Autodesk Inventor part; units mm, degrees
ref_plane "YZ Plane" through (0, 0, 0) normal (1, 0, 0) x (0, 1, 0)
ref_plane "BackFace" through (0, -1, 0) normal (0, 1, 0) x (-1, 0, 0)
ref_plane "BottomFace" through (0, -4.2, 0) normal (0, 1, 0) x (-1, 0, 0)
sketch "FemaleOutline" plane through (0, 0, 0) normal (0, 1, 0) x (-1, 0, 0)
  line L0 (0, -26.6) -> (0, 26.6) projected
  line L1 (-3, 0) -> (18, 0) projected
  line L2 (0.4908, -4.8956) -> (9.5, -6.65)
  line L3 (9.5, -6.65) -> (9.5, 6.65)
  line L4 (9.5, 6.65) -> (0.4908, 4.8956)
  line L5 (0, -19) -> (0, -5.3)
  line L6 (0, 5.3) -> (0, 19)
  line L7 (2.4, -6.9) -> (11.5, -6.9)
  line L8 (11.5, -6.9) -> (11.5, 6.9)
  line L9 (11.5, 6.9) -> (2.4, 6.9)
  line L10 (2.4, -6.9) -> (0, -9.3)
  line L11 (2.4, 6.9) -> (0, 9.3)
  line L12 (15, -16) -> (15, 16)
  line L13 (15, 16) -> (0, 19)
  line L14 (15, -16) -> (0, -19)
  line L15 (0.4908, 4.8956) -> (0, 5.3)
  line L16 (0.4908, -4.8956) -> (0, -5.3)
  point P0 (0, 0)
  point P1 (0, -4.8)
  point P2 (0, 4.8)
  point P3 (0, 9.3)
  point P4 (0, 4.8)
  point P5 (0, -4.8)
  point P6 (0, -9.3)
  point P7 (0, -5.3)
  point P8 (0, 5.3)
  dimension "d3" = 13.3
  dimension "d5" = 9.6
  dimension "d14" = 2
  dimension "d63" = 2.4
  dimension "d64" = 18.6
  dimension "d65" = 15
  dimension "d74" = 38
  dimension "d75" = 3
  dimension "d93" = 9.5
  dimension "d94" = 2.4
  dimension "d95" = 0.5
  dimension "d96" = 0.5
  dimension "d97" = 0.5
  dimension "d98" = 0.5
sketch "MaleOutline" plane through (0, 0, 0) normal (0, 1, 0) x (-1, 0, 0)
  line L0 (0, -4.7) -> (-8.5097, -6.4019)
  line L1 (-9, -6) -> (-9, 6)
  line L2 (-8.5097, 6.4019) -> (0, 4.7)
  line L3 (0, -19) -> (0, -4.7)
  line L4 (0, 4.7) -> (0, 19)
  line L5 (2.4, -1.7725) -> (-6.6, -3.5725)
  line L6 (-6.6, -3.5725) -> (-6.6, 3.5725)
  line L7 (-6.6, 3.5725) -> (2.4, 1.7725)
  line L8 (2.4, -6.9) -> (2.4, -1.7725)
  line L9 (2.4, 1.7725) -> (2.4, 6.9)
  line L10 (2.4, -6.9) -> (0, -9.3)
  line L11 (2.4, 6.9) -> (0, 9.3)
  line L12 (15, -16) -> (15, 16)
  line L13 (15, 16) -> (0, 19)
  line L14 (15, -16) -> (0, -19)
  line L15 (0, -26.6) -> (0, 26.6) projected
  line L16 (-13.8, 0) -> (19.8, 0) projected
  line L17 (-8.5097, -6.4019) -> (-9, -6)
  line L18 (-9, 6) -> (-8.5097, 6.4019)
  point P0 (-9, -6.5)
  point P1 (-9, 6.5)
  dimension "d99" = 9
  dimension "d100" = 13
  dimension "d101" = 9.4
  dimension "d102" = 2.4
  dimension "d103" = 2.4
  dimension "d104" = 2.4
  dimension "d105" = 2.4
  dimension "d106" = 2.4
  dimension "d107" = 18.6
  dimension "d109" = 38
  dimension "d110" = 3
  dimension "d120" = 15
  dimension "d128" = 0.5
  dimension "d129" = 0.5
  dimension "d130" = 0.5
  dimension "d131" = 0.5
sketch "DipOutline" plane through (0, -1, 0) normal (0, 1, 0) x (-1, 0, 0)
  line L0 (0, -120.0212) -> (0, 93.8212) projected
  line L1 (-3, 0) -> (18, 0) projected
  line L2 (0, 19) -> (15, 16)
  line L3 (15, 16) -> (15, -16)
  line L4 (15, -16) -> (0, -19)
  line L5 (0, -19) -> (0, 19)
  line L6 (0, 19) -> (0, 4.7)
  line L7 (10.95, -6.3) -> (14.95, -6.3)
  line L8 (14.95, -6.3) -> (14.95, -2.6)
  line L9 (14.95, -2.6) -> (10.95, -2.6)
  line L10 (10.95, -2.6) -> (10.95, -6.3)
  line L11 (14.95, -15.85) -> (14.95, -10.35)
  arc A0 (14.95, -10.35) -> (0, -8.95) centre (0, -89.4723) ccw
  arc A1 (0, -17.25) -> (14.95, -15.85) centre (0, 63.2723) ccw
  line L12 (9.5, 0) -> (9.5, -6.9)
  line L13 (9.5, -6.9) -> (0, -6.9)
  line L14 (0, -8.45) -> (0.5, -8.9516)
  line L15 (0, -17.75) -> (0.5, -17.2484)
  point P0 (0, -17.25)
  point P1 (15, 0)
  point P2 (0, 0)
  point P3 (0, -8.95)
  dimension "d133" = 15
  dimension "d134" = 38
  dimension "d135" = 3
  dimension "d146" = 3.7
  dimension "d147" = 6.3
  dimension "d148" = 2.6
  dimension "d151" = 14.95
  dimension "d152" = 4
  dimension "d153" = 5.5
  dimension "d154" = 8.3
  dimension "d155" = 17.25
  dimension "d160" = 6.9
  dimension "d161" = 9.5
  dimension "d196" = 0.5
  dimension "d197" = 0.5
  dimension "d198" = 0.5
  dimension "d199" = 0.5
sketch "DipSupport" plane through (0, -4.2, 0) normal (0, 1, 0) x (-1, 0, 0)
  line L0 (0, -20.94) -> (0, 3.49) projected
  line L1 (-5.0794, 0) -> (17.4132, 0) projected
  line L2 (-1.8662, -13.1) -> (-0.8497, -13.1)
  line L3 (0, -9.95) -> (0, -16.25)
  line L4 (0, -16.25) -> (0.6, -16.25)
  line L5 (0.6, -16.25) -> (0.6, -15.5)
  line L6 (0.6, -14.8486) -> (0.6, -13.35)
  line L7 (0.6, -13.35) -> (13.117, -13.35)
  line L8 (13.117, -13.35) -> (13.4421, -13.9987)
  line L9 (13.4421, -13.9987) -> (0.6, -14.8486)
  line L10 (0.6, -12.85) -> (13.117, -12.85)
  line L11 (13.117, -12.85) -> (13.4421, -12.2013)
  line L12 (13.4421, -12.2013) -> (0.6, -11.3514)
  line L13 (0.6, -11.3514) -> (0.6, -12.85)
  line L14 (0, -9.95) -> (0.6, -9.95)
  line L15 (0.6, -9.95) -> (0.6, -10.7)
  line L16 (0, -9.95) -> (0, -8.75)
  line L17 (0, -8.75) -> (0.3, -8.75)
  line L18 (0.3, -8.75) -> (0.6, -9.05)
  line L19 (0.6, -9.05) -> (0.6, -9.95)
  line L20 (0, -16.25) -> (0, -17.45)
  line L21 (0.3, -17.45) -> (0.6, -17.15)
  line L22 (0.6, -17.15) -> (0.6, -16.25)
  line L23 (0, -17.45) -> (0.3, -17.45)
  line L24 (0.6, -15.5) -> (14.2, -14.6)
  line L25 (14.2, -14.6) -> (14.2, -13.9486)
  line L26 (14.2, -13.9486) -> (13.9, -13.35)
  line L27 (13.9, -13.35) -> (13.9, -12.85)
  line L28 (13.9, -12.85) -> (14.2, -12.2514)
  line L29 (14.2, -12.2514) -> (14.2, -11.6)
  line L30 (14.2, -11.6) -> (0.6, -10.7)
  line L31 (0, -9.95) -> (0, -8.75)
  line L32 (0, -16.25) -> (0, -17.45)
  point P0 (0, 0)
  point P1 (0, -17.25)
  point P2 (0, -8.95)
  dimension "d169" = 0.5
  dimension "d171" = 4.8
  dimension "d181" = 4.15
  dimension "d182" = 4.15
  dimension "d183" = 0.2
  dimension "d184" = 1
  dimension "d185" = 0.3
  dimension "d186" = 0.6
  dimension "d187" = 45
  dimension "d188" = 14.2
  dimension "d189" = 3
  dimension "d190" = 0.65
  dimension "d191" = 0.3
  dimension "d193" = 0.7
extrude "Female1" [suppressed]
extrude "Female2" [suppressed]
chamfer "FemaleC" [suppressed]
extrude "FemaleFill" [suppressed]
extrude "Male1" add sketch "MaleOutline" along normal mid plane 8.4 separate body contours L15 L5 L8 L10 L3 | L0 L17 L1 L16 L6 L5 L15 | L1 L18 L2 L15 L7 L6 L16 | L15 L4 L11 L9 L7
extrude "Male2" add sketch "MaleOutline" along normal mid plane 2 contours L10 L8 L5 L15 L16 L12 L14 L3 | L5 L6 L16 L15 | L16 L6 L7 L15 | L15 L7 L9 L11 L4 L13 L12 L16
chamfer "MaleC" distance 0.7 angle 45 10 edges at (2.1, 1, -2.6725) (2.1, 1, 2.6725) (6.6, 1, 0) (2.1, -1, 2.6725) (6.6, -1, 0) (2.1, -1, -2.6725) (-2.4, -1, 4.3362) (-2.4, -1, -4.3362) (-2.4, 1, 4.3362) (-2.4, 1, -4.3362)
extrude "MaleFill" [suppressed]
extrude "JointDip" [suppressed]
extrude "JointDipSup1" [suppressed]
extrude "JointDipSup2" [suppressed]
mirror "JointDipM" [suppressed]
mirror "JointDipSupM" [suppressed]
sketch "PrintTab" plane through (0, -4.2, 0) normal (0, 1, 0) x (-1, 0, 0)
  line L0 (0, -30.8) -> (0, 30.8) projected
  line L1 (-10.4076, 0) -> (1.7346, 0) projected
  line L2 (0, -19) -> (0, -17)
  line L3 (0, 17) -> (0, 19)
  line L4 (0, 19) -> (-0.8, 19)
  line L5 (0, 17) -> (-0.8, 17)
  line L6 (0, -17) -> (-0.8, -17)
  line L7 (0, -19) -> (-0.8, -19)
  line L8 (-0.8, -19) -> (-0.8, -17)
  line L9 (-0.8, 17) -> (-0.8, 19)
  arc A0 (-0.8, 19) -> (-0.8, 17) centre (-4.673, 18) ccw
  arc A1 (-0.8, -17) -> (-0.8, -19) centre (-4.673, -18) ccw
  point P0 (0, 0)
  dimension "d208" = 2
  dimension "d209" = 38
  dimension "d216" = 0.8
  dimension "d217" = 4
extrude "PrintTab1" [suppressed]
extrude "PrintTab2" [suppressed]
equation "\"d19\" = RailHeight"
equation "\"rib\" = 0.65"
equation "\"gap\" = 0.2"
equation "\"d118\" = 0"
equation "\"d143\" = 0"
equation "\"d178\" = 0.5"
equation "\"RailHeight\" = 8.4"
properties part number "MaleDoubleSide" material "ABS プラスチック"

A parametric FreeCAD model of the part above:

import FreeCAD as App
import Part
import Sketcher

V = App.Vector
Q = App.Units.Quantity


def edges_at(feature, points):
    """Names of the edges that pass closest to the given points."""
    edges = feature.Shape.Edges
    near = lambda p: min(range(len(edges)), key=lambda i: edges[i].distToShape(Part.Vertex(*p))[0])
    return sorted({f"Edge{near(p) + 1}" for p in points})


def add_polygon(sketch, points):
    """Adds a closed chain of lines whose ends are joined by coincident constraints."""
    first, n = sketch.GeometryCount, len(points)
    for a, b in zip(points, points[1:] + points[:1]):
        sketch.addGeometry(Part.LineSegment(App.Vector(*a, 0), App.Vector(*b, 0)), False)
    for i in range(n):
        sketch.addConstraint(Sketcher.Constraint("Coincident", first + i, 2, first + (i + 1) % n, 1))

doc = App.newDocument("Part")
body = doc.addObject("PartDesign::Body", "Body")

# Sketch on XZ plane
sketch1 = body.newObject("Sketcher::SketchObject", "Sketch")
sketch1.AttachmentSupport = (doc.getObject("XZ_Plane"), [""])
sketch1.MapMode = "FlatFace"
add_polygon(sketch1, [(-2.4, -1.8), (6.6, -3.6), (6.6, 3.6), (-2.4, 1.8), (-2.4, 6.9), (0, 9.3), (0, 4.7), (8.5, 6.4), (9, 6), (9, -6), (8.5, -6.4), (0, -4.7), (0, -9.3), (-2.4, -6.9)])  # lines 0-13
sketch1.addConstraint(Sketcher.Constraint("Vertical", 1))
sketch1.addConstraint(Sketcher.Constraint("Vertical", 3))
sketch1.addConstraint(Sketcher.Constraint("Vertical", 5))
sketch1.addConstraint(Sketcher.Constraint("Vertical", 8))
sketch1.addConstraint(Sketcher.Constraint("Vertical", 11))
sketch1.addConstraint(Sketcher.Constraint("Vertical", 13))
sketch1.addConstraint(Sketcher.Constraint("Symmetric", 5, 2, 10, 2, -1, 1))
sketch1.addConstraint(Sketcher.Constraint("Symmetric", 6, 2, 9, 2, -1))
sketch1.addConstraint(Sketcher.Constraint("Symmetric", 4, 2, 11, 2, -1))
sketch1.addConstraint(Sketcher.Constraint("Symmetric", 3, 2, 12, 2, -1))
sketch1.addConstraint(Sketcher.Constraint("Parallel", 2, 6))
sketch1.addConstraint(Sketcher.Constraint("Parallel", 0, 10))
sketch1.addConstraint(Sketcher.Constraint("Perpendicular", 4, 12))
sketch1.addConstraint(Sketcher.Constraint("Equal", 3, 13))
sketch1.addConstraint(Sketcher.Constraint("Equal", 7, 9))
sketch1.addConstraint(Sketcher.Constraint("DistanceX", -1, 1, 7, 2, Q("9 mm")))
sketch1.addConstraint(Sketcher.Constraint("DistanceX", 2, 2, 1, 2, Q("9 mm")))
sketch1.addConstraint(Sketcher.Constraint("DistanceX", 2, 2, -1, 1, Q("2.4 mm")))
sketch1.addConstraint(Sketcher.Constraint("DistanceY", 10, 2, 5, 2, Q("9.4 mm")))
sketch1.addConstraint(Sketcher.Constraint("DistanceY", 8, 2, 8, 1, Q("12 mm")))
sketch1.addConstraint(Sketcher.Constraint("DistanceY", 5, 2, 5, 1, Q("4.6 mm")))
sketch1.addConstraint(Sketcher.Constraint("Angle", 0, Q("-11.31 deg")))
sketch1.addConstraint(Sketcher.Constraint("DistanceY", 1, 1, 1, 2, Q("7.145 mm")))
sketch1.addConstraint(Sketcher.Constraint("Distance", 7, Q("0.634 mm")))
pad1 = body.newObject("PartDesign::Pad", "Pad")
pad1.Profile = sketch1
pad1.Length = 8.4
pad1.Midplane = True

# Sketch on XZ plane
sketch2 = body.newObject("Sketcher::SketchObject", "Sketch001")
sketch2.AttachmentSupport = (doc.getObject("XZ_Plane"), [""])
sketch2.MapMode = "FlatFace"
add_polygon(sketch2, [(-2.4, -6.9), (0, -9.3), (0, -19), (-15, -16), (-15, 16), (0, 19), (0, 9.3), (-2.4, 6.9), (-2.4, 1.8), (6.6, 3.6), (6.6, -3.6), (-2.4, -1.8)])  # lines 0-11
sketch2.addConstraint(Sketcher.Constraint("Vertical", 1))
sketch2.addConstraint(Sketcher.Constraint("Vertical", 3))
sketch2.addConstraint(Sketcher.Constraint("Vertical", 5))
sketch2.addConstraint(Sketcher.Constraint("Vertical", 7))
sketch2.addConstraint(Sketcher.Constraint("Vertical", 9))
sketch2.addConstraint(Sketcher.Constraint("Vertical", 11))
sketch2.addConstraint(Sketcher.Constraint("Symmetric", 1, 2, 4, 2, -1, 1))
sketch2.addConstraint(Sketcher.Constraint("Symmetric", 0, 2, 5, 2, -1))
sketch2.addConstraint(Sketcher.Constraint("Symmetric", 7, 2, 10, 2, -1))
sketch2.addConstraint(Sketcher.Constraint("Perpendicular", 0, 6))
sketch2.addConstraint(Sketcher.Constraint("Parallel", 4, 8))
sketch2.addConstraint(Sketcher.Constraint("Parallel", 2, 10))
sketch2.addConstraint(Sketcher.Constraint("Equal", 7, 11))
sketch2.addConstraint(Sketcher.Constraint("Equal", 2, 4))
sketch2.addConstraint(Sketcher.Constraint("DistanceX", 2, 2, -1, 1, Q("15 mm")))
sketch2.addConstraint(Sketcher.Constraint("DistanceY", 1, 2, 2, 2, Q("3 mm")))
sketch2.addConstraint(Sketcher.Constraint("DistanceY", 1, 2, 4, 2, Q("38 mm")))
sketch2.addConstraint(Sketcher.Constraint("DistanceX", 7, 2, 8, 2, Q("9 mm")))
sketch2.addConstraint(Sketcher.Constraint("DistanceX", 6, 2, -1, 1, Q("2.4 mm")))
sketch2.addConstraint(Sketcher.Constraint("DistanceY", 0, 2, 5, 2, Q("18.6 mm")))
sketch2.addConstraint(Sketcher.Constraint("DistanceY", 9, 2, 9, 1, Q("7.145 mm")))
pad2 = body.newObject("PartDesign::Pad", "Pad001")
pad2.Profile = sketch2
pad2.Length = 2
pad2.Midplane = True
doc.recompute()

chamfer = body.newObject("PartDesign::Chamfer", "Chamfer")
chamfer.Base = (pad2, edges_at(pad2, [
    (2.1, 1, -2.672),
    (2.1, 1, 2.672),
    (6.6, 1, 0),
    (2.1, -1, 2.672),
    (6.6, -1, 0),
    (2.1, -1, -2.672),
    (-2.4, -1, 4.336),
    (-2.4, -1, -4.336),
    (-2.4, 1, 4.336),
    (-2.4, 1, -4.336),
]))
chamfer.Size = 0.7

doc.recompute()
